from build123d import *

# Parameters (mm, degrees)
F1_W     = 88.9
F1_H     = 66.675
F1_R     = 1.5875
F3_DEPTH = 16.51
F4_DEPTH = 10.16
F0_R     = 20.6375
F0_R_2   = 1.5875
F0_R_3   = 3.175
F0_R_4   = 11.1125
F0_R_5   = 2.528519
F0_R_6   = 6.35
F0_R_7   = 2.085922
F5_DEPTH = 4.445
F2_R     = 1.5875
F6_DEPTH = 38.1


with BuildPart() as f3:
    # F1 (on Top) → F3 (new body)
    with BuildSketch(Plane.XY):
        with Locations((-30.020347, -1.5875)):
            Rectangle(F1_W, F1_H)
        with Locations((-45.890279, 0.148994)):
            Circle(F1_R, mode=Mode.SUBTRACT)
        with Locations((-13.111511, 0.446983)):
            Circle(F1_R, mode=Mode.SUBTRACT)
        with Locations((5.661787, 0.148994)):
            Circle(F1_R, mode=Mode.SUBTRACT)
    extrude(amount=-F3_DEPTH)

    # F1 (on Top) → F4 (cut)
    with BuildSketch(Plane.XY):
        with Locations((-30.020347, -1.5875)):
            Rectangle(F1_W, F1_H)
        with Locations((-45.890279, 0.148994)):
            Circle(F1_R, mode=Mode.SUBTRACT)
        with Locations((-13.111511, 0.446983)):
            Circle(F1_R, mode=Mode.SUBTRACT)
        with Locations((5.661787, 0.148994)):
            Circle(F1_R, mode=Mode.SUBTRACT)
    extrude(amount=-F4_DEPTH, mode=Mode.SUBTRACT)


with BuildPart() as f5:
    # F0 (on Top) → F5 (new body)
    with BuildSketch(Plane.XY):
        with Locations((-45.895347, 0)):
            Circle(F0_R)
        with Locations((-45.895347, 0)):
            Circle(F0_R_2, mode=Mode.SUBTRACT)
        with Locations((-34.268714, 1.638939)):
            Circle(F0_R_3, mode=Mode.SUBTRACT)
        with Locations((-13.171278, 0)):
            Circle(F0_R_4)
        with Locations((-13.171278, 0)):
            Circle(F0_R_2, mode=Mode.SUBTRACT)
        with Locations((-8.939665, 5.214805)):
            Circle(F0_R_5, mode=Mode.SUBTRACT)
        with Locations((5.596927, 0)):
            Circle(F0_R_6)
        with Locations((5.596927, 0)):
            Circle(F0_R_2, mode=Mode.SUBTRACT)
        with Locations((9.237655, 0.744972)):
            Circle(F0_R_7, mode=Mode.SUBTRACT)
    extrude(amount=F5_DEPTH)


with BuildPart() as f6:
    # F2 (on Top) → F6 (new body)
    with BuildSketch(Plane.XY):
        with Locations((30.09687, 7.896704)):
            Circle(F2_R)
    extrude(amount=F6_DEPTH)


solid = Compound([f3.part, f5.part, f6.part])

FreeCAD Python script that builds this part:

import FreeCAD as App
import Part
import Sketcher
Q = App.Units.Quantity

doc = App.newDocument("Part")
body = doc.addObject("PartDesign::Body", "Body")

sketch1 = body.newObject("Sketcher::SketchObject", "Sketch")
sketch1.AttachmentSupport = (doc.getObject("XY_Plane"), [""])
sketch1.MapMode = "FlatFace"
sketch1.addGeometry([
    Part.LineSegment(App.Vector(-74.470347, 31.75, 0), App.Vector(-74.470347, -34.925, 0)),
    Part.LineSegment(App.Vector(-74.470347, -34.925, 0), App.Vector(14.429653, -34.925, 0)),
    Part.LineSegment(App.Vector(14.429653, -34.925, 0), App.Vector(14.429653, 31.75, 0)),
    Part.LineSegment(App.Vector(14.429653, 31.75, 0), App.Vector(-74.470347, 31.75, 0)),
    Part.Circle(App.Vector(-45.890279, 0.148994, 0), App.Vector(0, 0, 1), 1.5875),
    Part.Circle(App.Vector(5.661787, 0.148994, 0), App.Vector(0, 0, 1), 1.5875),
    Part.Circle(App.Vector(-13.111511, 0.446983, 0), App.Vector(0, 0, 1), 1.5875),
], False)
sketch1.addConstraint([
    Sketcher.Constraint("Coincident", 0, 2, 1, 1),
    Sketcher.Constraint("Coincident", 1, 2, 2, 1),
    Sketcher.Constraint("Coincident", 2, 2, 3, 1),
    Sketcher.Constraint("Coincident", 3, 2, 0, 1),
    Sketcher.Constraint("Vertical", 0),
    Sketcher.Constraint("Horizontal", 1),
    Sketcher.Constraint("Vertical", 2),
    Sketcher.Constraint("Horizontal", 3),
    Sketcher.Constraint("Equal", 4, 5),
    Sketcher.Constraint("Equal", 5, 6),
    Sketcher.Constraint("Horizontal", 4, 3, 5, 3),
    Sketcher.Constraint("Diameter", 4, Q("0.125 in")),
    Sketcher.Constraint("DistanceX", 1, 1, 1, 2, Q("3.5 in")),
    Sketcher.Constraint("DistanceY", 0, 2, 0, 1, Q("2.625 in")),
    Sketcher.Constraint("DistanceY", -1, 1, 2, 2, Q("1.25 in")),
    Sketcher.Constraint("DistanceX", 6, 3, 5, 3, 18.773298),
    Sketcher.Constraint("DistanceX", 4, 3, -1, 1, 45.890279),
    Sketcher.Constraint("DistanceX", 6, 3, -1, 1, 13.111511),
    Sketcher.Constraint("DistanceY", 5, 3, 6, 3, 0.297989),
    Sketcher.Constraint("DistanceX", 0, 2, 4, 3, 28.580068),
    Sketcher.Constraint("DistanceY", -1, 1, 4, 3, 0.148994),
])
pad1 = body.newObject("PartDesign::Pad", "Pad")
pad1.Profile = sketch1
pad1.Length = Q("0.65 in")
pad1.Reversed = True

sketch2 = body.newObject("Sketcher::SketchObject", "Sketch001")
sketch2.AttachmentSupport = (doc.getObject("XY_Plane"), [""])
sketch2.MapMode = "FlatFace"
sketch2.addGeometry([
    Part.LineSegment(App.Vector(-74.470347, 31.75, 0), App.Vector(-74.470347, -34.925, 0)),
    Part.LineSegment(App.Vector(-74.470347, -34.925, 0), App.Vector(14.429653, -34.925, 0)),
    Part.LineSegment(App.Vector(14.429653, -34.925, 0), App.Vector(14.429653, 31.75, 0)),
    Part.LineSegment(App.Vector(14.429653, 31.75, 0), App.Vector(-74.470347, 31.75, 0)),
    Part.Circle(App.Vector(-45.890279, 0.148994, 0), App.Vector(0, 0, 1), 1.5875),
    Part.Circle(App.Vector(5.661787, 0.148994, 0), App.Vector(0, 0, 1), 1.5875),
    Part.Circle(App.Vector(-13.111511, 0.446983, 0), App.Vector(0, 0, 1), 1.5875),
], False)
sketch2.addConstraint([
    Sketcher.Constraint("Coincident", 0, 2, 1, 1),
    Sketcher.Constraint("Coincident", 1, 2, 2, 1),
    Sketcher.Constraint("Coincident", 2, 2, 3, 1),
    Sketcher.Constraint("Coincident", 3, 2, 0, 1),
    Sketcher.Constraint("Vertical", 0),
    Sketcher.Constraint("Horizontal", 1),
    Sketcher.Constraint("Vertical", 2),
    Sketcher.Constraint("Horizontal", 3),
    Sketcher.Constraint("Equal", 4, 5),
    Sketcher.Constraint("Equal", 5, 6),
    Sketcher.Constraint("Horizontal", 4, 3, 5, 3),
    Sketcher.Constraint("Diameter", 4, Q("0.125 in")),
    Sketcher.Constraint("DistanceX", 1, 1, 1, 2, Q("3.5 in")),
    Sketcher.Constraint("DistanceY", 0, 2, 0, 1, Q("2.625 in")),
    Sketcher.Constraint("DistanceY", -1, 1, 2, 2, Q("1.25 in")),
    Sketcher.Constraint("DistanceX", 6, 3, 5, 3, 18.773298),
    Sketcher.Constraint("DistanceX", 4, 3, -1, 1, 45.890279),
    Sketcher.Constraint("DistanceX", 6, 3, -1, 1, 13.111511),
    Sketcher.Constraint("DistanceY", 5, 3, 6, 3, 0.297989),
    Sketcher.Constraint("DistanceX", 0, 2, 4, 3, 28.580068),
    Sketcher.Constraint("DistanceY", -1, 1, 4, 3, 0.148994),
])
pocket1 = body.newObject("PartDesign::Pocket", "Pocket")
pocket1.Profile = sketch2
pocket1.Length = Q("0.4 in")
body2 = doc.addObject("PartDesign::Body", "Body001")
body2.AllowCompound = True

sketch3 = body2.newObject("Sketcher::SketchObject", "Sketch002")
sketch3.AttachmentSupport = (doc.getObject("XY_Plane001"), [""])
sketch3.MapMode = "FlatFace"
sketch3.addGeometry([
    Part.Circle(App.Vector(-45.895347, 0, 0), App.Vector(0, 0, 1), 20.6375),
    Part.Circle(App.Vector(-45.895347, 0, 0), App.Vector(0, 0, 1), 1.5875),
    Part.Circle(App.Vector(-34.268714, 1.638939, 0), App.Vector(0, 0, 1), 3.175),
    Part.Circle(App.Vector(-13.171278, 0, 0), App.Vector(0, 0, 1), 11.1125),
    Part.Circle(App.Vector(-13.171278, 0, 0), App.Vector(0, 0, 1), 1.5875),
    Part.Circle(App.Vector(-8.939665, 5.214805, 0), App.Vector(0, 0, 1), 2.528519),
    Part.Circle(App.Vector(5.596927, 0, 0), App.Vector(0, 0, 1), 6.35),
    Part.Circle(App.Vector(5.596927, 0, 0), App.Vector(0, 0, 1), 1.5875),
    Part.Circle(App.Vector(9.237655, 0.744972, 0), App.Vector(0, 0, 1), 2.085922),
], False)
sketch3.addConstraint([
    Sketcher.Constraint("Coincident", 1, 3, 0, 3),
    Sketcher.Constraint("Coincident", 4, 3, 3, 3),
    Sketcher.Constraint("Coincident", 7, 3, 6, 3),
    Sketcher.Constraint("Equal", 1, 4),
    Sketcher.Constraint("Equal", 4, 7),
    Sketcher.Constraint("PointOnObject", 0, 3, -1),
    Sketcher.Constraint("PointOnObject", 3, 3, -1),
    Sketcher.Constraint("PointOnObject", 6, 3, -1),
    Sketcher.Constraint("Diameter", 6, Q("0.5 in")),
    Sketcher.Constraint("Diameter", 2, Q("0.25 in")),
    Sketcher.Constraint("Diameter", 0, Q("1.625 in")),
    Sketcher.Constraint("Diameter", 1, Q("0.125 in")),
    Sketcher.Constraint("Diameter", 3, Q("0.875 in")),
    Sketcher.Constraint("Diameter", 5, 5.057038),
    Sketcher.Constraint("Diameter", 8, 4.171844),
    Sketcher.Constraint("DistanceY", -1, 1, 2, 3, 1.638939),
    Sketcher.Constraint("DistanceY", -1, 1, 8, 3, 0.744972),
    Sketcher.Constraint("DistanceX", 0, 3, 3, 3, 32.724069),
    Sketcher.Constraint("DistanceX", 2, 3, 5, 3, 25.329049),
    Sketcher.Constraint("DistanceX", 5, 3, 6, 3, 14.536592),
    Sketcher.Constraint("DistanceX", 6, 3, 8, 3, 3.640728),
    Sketcher.Constraint("DistanceX", 0, 3, -1, 1, 45.895347),
    Sketcher.Constraint("DistanceX", 2, 3, -1, 1, 34.268714),
    Sketcher.Constraint("DistanceY", -1, 1, 5, 3, 5.214805),
])
pad2 = body2.newObject("PartDesign::Pad", "Pad001")
pad2.Profile = sketch3
pad2.Length = Q("0.175 in")
body3 = doc.addObject("PartDesign::Body", "Body002")

sketch4 = body3.newObject("Sketcher::SketchObject", "Sketch003")
sketch4.AttachmentSupport = (doc.getObject("XY_Plane002"), [""])
sketch4.MapMode = "FlatFace"
sketch4.addGeometry(Part.Circle(App.Vector(30.09687, 7.896704, 0), App.Vector(0, 0, 1), 1.5875), False)
sketch4.addConstraint([
    Sketcher.Constraint("Diameter", 0, Q("0.125 in")),
    Sketcher.Constraint("DistanceX", -1, 1, 0, 3, 30.09687),
    Sketcher.Constraint("DistanceY", -1, 1, 0, 3, 7.896704),
])
pad3 = body3.newObject("PartDesign::Pad", "Pad002")
pad3.Profile = sketch4
pad3.Length = Q("1.5 in")

doc.recompute()
